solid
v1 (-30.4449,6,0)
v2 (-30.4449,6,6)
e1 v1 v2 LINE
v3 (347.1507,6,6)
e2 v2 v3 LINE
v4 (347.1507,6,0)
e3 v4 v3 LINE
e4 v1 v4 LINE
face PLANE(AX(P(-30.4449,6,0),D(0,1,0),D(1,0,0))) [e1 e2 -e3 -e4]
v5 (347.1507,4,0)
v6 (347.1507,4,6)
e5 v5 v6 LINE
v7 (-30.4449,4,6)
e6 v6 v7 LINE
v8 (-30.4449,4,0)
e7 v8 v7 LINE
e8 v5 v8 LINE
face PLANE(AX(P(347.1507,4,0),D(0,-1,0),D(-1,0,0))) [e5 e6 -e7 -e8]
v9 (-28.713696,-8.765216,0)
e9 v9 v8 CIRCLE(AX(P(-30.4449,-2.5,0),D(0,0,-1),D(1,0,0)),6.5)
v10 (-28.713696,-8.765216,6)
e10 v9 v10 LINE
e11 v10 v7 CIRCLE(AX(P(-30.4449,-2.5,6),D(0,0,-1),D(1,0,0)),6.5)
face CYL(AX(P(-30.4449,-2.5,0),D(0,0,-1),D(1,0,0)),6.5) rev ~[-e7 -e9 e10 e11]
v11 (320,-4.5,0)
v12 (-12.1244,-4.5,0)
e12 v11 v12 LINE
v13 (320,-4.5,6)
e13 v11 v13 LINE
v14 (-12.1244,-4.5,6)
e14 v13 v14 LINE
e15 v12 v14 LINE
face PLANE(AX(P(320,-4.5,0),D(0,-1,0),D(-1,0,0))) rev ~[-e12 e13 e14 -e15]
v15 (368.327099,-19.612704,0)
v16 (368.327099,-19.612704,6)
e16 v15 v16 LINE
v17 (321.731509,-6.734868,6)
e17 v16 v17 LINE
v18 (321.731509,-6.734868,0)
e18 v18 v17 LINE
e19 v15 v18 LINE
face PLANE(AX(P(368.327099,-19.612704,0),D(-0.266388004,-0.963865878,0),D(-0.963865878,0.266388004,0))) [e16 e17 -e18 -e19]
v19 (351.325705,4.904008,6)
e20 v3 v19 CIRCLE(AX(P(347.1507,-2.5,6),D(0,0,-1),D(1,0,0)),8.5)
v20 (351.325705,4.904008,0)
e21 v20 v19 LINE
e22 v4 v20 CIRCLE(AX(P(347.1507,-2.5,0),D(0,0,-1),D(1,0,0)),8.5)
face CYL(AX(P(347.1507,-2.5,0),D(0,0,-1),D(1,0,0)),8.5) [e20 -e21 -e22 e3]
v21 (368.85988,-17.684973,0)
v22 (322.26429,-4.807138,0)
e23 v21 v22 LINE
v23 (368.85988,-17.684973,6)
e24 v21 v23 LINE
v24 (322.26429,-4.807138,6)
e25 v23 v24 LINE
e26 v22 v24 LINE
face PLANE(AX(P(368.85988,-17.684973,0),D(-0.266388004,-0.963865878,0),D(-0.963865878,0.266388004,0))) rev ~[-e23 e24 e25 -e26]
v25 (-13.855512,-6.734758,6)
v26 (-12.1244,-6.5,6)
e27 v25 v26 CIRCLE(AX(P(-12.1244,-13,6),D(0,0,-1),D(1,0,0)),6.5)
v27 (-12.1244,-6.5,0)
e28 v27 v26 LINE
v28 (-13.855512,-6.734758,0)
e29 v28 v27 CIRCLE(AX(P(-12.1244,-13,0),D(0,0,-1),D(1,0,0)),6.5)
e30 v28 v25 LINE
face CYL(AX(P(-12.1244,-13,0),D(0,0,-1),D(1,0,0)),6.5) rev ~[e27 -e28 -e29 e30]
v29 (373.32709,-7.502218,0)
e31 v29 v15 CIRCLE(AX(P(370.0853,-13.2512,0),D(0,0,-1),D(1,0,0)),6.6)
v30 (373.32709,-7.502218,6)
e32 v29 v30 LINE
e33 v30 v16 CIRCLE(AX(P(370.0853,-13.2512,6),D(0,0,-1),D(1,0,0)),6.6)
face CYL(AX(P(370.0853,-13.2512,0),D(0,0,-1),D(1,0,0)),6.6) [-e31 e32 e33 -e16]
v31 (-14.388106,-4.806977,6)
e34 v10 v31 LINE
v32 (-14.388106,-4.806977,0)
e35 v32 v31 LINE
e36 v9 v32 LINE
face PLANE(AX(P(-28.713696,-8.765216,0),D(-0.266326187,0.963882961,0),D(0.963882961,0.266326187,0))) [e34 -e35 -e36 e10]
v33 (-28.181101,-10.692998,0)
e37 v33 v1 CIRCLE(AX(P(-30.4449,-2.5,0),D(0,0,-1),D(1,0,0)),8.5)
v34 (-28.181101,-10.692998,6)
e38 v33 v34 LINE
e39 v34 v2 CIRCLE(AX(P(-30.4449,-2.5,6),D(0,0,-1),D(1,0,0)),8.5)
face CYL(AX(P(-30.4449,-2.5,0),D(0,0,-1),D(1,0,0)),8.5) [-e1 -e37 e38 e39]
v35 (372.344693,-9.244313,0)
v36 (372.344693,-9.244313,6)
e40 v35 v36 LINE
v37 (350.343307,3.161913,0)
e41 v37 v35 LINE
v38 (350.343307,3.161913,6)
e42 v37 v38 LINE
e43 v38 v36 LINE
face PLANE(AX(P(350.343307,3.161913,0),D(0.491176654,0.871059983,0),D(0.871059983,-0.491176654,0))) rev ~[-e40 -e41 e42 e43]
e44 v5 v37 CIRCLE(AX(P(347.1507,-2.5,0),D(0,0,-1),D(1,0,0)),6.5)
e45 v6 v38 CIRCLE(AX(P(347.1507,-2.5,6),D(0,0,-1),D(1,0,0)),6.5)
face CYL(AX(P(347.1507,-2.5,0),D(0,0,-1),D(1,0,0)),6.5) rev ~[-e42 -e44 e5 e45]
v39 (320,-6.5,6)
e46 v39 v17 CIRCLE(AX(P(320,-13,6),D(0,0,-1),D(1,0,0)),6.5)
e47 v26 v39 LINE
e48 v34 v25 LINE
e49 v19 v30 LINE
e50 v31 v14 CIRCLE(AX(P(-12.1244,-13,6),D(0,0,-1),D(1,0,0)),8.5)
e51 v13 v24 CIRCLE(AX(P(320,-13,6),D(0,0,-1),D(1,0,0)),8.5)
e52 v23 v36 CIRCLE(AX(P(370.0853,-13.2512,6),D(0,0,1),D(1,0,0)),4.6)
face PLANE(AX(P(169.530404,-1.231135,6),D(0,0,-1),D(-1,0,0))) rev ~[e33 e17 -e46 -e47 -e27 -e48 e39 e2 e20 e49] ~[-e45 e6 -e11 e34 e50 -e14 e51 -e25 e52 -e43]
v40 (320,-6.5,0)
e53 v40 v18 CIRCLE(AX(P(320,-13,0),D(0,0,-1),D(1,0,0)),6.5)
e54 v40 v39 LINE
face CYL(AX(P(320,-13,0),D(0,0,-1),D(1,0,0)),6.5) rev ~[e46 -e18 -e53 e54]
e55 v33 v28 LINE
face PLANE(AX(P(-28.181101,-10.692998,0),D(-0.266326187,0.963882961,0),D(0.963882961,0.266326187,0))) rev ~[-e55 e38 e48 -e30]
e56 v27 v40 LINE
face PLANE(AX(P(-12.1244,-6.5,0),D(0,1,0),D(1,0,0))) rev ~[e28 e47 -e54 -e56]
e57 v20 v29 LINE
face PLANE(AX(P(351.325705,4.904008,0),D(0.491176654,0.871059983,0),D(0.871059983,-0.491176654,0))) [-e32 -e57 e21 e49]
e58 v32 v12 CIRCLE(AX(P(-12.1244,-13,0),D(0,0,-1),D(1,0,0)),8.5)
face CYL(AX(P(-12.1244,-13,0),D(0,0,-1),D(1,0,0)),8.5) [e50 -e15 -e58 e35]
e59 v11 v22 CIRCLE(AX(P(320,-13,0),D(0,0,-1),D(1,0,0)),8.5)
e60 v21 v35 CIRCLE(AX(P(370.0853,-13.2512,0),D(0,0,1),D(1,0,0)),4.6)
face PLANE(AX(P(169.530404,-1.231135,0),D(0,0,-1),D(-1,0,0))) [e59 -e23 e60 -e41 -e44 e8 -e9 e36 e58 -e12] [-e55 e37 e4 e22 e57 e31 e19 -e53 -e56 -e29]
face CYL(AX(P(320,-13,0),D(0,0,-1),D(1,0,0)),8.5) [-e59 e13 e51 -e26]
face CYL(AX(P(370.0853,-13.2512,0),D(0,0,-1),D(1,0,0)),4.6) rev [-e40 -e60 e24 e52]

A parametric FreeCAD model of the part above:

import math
import FreeCAD as App
import Part
import Sketcher
from FreeCAD import Vector

doc = App.newDocument("Part")
body = doc.addObject("PartDesign::Body", "Body")

# Sketch on XY plane
sketch1 = body.newObject("Sketcher::SketchObject", "Sketch")
sketch1.AttachmentSupport = (doc.getObject("XY_Plane"), [""])
sketch1.MapMode = "FlatFace"
sketch1.addGeometry([
    Part.LineSegment(Vector(347.1507, 6, 0), Vector(-30.4449, 6, 0)),  # 0
    Part.ArcOfCircle(Part.Circle(Vector(-30.4449, -2.5, 0), Vector(0, 0, 1), 8.500002), math.radians(90), math.radians(285.445957)),  # 1
    Part.LineSegment(Vector(-28.1811, -10.693, 0), Vector(-13.8555, -6.7348, 0)),  # 2
    Part.ArcOfCircle(Part.Circle(Vector(-12.12392, -13.00234, 0), Vector(0, 0, 1), 6.50234), math.radians(90.004226), math.radians(105.444273)),  # 3
    Part.LineSegment(Vector(-12.1244, -6.5, 0), Vector(320, -6.5, 0)),  # 4
    Part.ArcOfCircle(Part.Circle(Vector(320.000123, -12.998179, 0), Vector(0, 0, 1), 6.498179), math.radians(74.547444), math.radians(90.001084)),  # 5
    Part.LineSegment(Vector(321.7315, -6.7349, 0), Vector(368.3271, -19.6127, 0)),  # 6
    Part.ArcOfCircle(Part.Circle(Vector(370.0853, -13.2512, 0), Vector(0, 0, 1), 6.60002), math.radians(-105.449807), math.radians(60.581811)),  # 7
    Part.LineSegment(Vector(373.3271, -7.5022, 0), Vector(351.3257, 4.904, 0)),  # 8
    Part.ArcOfCircle(Part.Circle(Vector(347.1507, -2.5, 0), Vector(0, 0, 1), 8.5), math.radians(60.582028), math.radians(90)),  # 9
    Part.LineSegment(Vector(-30.4449, 4, 0), Vector(347.1507, 4, 0)),  # 10
    Part.ArcOfCircle(Part.Circle(Vector(347.1507, -2.5, 0), Vector(0, 0, 1), 6.5), math.radians(60.582465), math.radians(90)),  # 11
    Part.LineSegment(Vector(350.3433, 3.1619, 0), Vector(372.3447, -9.2443, 0)),  # 12
    Part.ArcOfCircle(Part.Circle(Vector(370.0853, -13.2512, 0), Vector(0, 0, 1), 4.60002), math.radians(-105.449902), math.radians(60.582335)),  # 13
    Part.LineSegment(Vector(368.8599, -17.6849, 0), Vector(322.2643, -4.8071, 0)),  # 14
    Part.ArcOfCircle(Part.Circle(Vector(319.999854, -13.002156, 0), Vector(0, 0, 1), 8.502156), math.radians(74.553539), math.radians(89.999019)),  # 15
    Part.LineSegment(Vector(320, -4.5, 0), Vector(-12.1244, -4.5, 0)),  # 16
    Part.ArcOfCircle(Part.Circle(Vector(-12.12413, -13.001316, 0), Vector(0, 0, 1), 8.501316), math.radians(90.001818), math.radians(105.444698)),  # 17
    Part.LineSegment(Vector(-14.3881, -4.807, 0), Vector(-28.7137, -8.7652, 0)),  # 18
    Part.ArcOfCircle(Part.Circle(Vector(-30.4449, -2.5, 0), Vector(0, 0, 1), 6.499983), math.radians(90), math.radians(285.44654)),  # 19
], False)
sketch1.addConstraint([
    Sketcher.Constraint("Coincident", 0, 2, 1, 1),
    Sketcher.Constraint("Coincident", 1, 2, 2, 1),
    Sketcher.Constraint("Coincident", 2, 2, 3, 2),
    Sketcher.Constraint("Coincident", 3, 1, 4, 1),
    Sketcher.Constraint("Coincident", 4, 2, 5, 2),
    Sketcher.Constraint("Coincident", 5, 1, 6, 1),
    Sketcher.Constraint("Coincident", 6, 2, 7, 1),
    Sketcher.Constraint("Coincident", 7, 2, 8, 1),
    Sketcher.Constraint("Coincident", 8, 2, 9, 1),
    Sketcher.Constraint("Coincident", 9, 2, 0, 1),
    Sketcher.Constraint("Coincident", 10, 2, 11, 2),
    Sketcher.Constraint("Coincident", 11, 1, 12, 1),
    Sketcher.Constraint("Coincident", 12, 2, 13, 2),
    Sketcher.Constraint("Coincident", 13, 1, 14, 1),
    Sketcher.Constraint("Coincident", 14, 2, 15, 1),
    Sketcher.Constraint("Coincident", 15, 2, 16, 1),
    Sketcher.Constraint("Coincident", 16, 2, 17, 1),
    Sketcher.Constraint("Coincident", 17, 2, 18, 1),
    Sketcher.Constraint("Coincident", 18, 2, 19, 2),
    Sketcher.Constraint("Coincident", 19, 1, 10, 1),
    Sketcher.Constraint("Horizontal", 0),
    Sketcher.Constraint("Horizontal", 4),
    Sketcher.Constraint("Horizontal", 10),
    Sketcher.Constraint("Horizontal", 16),
    Sketcher.Constraint("Coincident", 11, 3, 9, 3),
    Sketcher.Constraint("Coincident", 13, 3, 7, 3),
    Sketcher.Constraint("Coincident", 19, 3, 1, 3),
    Sketcher.Constraint("Radius", 1, 8.5),
    Sketcher.Constraint("Radius", 7, 6.6),
    Sketcher.Constraint("Radius", 9, 8.5),
    Sketcher.Constraint("Radius", 11, 6.5),
    Sketcher.Constraint("Radius", 13, 4.6),
    Sketcher.Constraint("DistanceY", -1, 1, 0, 2, 6.0),
    Sketcher.Constraint("DistanceX", -1, 1, 4, 2, 320.0),
    Sketcher.Constraint("DistanceX", -1, 1, 15, 2, 320.0),
    Sketcher.Constraint("DistanceY", 3, 1, 1, 3, 4.0),
    Sketcher.Constraint("DistanceX", 6, 2, 7, 2, 5.0),
    Sketcher.Constraint("DistanceY", 4, 2, 15, 2, 2.0),
    Sketcher.Constraint("Radius", 3, 6.5023),
    Sketcher.Constraint("Radius", 5, 6.4982),
    Sketcher.Constraint("Radius", 15, 8.5022),
    Sketcher.Constraint("Radius", 17, 8.5013),
    Sketcher.Constraint("DistanceX", 0, 2, 0, 1, 377.5956),
    Sketcher.Constraint("DistanceX", 4, 1, 4, 2, 332.1244),
    Sketcher.Constraint("DistanceX", 10, 1, 10, 2, 377.5956),
    Sketcher.Constraint("DistanceX", 16, 2, 16, 1, 332.1244),
    Sketcher.Constraint("DistanceX", 1, 3, -1, 1, 30.445),
    Sketcher.Constraint("DistanceX", 3, 3, -1, 1, 12.124),
    Sketcher.Constraint("DistanceX", 0, 2, -1, 1, 30.445),
    Sketcher.Constraint("DistanceX", 1, 2, -1, 1, 28.181),
    Sketcher.Constraint("DistanceY", 5, 1, -1, 1, 6.735),
    Sketcher.Constraint("DistanceX", -1, 1, 6, 2, 368.327),
    Sketcher.Constraint("DistanceY", -1, 1, 8, 2, 4.904),
    Sketcher.Constraint("DistanceY", -1, 1, 11, 1, 3.162),
    Sketcher.Constraint("DistanceY", 13, 1, -1, 1, 17.685),
    Sketcher.Constraint("DistanceY", 14, 2, -1, 1, 4.807),
    Sketcher.Constraint("DistanceX", 17, 2, -1, 1, 14.388),
    Sketcher.Constraint("DistanceY", 17, 2, -1, 1, 4.807),
    Sketcher.Constraint("DistanceX", 19, 1, -1, 1, 30.445),
    Sketcher.Constraint("DistanceX", 3, 3, 5, 3, 332.124),
    Sketcher.Constraint("DistanceY", 7, 3, 5, 3, 0.253),
    Sketcher.Constraint("DistanceX", 17, 3, 15, 3, 332.124),
    Sketcher.Constraint("DistanceX", 2, 2, 3, 1, 1.731),
    Sketcher.Constraint("DistanceY", 7, 3, 7, 2, 5.749),
    Sketcher.Constraint("DistanceX", 9, 2, 8, 2, 4.175),
    Sketcher.Constraint("DistanceY", 12, 2, 7, 2, 1.742),
    Sketcher.Constraint("Distance", 18, 14.8624),
])
pad1 = body.newObject("PartDesign::Pad", "Pad")
pad1.Profile = sketch1
pad1.Length = 6

doc.recompute()
